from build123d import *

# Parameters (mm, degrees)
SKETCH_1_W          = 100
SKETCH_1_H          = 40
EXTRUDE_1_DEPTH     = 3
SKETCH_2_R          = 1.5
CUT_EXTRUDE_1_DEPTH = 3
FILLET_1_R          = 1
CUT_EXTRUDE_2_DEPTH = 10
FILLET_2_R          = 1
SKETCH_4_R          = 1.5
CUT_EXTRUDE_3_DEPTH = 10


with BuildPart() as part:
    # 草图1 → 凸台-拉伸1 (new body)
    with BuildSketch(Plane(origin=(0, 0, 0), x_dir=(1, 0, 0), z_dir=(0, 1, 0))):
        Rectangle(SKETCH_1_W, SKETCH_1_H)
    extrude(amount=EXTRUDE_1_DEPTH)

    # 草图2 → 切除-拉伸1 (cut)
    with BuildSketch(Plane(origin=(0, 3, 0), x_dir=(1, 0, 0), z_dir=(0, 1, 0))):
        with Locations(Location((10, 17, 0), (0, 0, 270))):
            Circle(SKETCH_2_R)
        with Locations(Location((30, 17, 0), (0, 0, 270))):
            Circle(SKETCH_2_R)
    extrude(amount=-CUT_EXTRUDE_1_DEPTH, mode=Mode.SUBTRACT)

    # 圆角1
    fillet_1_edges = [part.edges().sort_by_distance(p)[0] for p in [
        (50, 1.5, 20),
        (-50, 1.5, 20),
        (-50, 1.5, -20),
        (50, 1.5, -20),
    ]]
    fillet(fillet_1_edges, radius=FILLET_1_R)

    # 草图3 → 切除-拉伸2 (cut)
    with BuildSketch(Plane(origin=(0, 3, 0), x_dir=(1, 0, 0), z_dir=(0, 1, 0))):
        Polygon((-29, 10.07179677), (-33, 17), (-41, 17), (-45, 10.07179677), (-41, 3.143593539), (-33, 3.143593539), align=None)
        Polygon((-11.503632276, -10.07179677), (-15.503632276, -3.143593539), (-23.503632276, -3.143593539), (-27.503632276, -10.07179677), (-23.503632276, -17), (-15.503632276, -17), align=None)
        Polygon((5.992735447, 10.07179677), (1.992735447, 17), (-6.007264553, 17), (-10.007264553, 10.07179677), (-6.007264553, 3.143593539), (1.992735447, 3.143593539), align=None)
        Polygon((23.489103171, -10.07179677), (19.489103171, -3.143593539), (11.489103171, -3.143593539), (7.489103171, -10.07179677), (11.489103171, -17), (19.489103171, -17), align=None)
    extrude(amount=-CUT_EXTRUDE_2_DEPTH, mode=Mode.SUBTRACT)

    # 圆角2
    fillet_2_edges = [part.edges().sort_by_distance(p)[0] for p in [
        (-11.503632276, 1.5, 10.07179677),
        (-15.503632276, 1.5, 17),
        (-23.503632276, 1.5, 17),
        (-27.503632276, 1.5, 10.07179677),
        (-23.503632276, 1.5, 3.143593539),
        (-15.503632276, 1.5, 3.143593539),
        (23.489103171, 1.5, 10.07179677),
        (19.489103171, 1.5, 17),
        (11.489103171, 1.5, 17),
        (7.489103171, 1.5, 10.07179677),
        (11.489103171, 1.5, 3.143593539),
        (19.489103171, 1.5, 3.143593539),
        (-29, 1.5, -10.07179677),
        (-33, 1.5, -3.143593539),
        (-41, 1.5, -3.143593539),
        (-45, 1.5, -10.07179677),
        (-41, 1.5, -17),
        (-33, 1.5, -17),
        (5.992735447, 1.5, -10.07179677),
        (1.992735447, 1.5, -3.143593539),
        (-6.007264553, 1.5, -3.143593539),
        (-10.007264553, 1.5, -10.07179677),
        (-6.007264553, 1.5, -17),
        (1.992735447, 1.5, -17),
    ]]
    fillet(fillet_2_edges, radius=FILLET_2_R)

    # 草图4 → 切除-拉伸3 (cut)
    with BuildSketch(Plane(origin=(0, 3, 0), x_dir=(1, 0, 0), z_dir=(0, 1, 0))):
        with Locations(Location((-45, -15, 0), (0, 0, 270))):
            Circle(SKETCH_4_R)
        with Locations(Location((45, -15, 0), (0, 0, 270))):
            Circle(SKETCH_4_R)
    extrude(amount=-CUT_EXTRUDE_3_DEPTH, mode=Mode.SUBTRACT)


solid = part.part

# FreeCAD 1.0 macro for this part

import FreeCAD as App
import Part
import Sketcher
Q = App.Units.Quantity


def edges_at(feature, points):
    """Names of the edges that pass closest to the given points."""
    edges = feature.Shape.Edges
    near = lambda p: min(range(len(edges)), key=lambda i: edges[i].distToShape(Part.Vertex(*p))[0])
    return sorted({f"Edge{near(p) + 1}" for p in points})


def add_polygon(sketch, points):
    """Adds a closed chain of lines whose ends are joined by coincident constraints."""
    first, n = sketch.GeometryCount, len(points)
    for a, b in zip(points, points[1:] + points[:1]):
        sketch.addGeometry(Part.LineSegment(App.Vector(*a, 0), App.Vector(*b, 0)), False)
    for i in range(n):
        sketch.addConstraint(Sketcher.Constraint("Coincident", first + i, 2, first + (i + 1) % n, 1))

doc = App.newDocument("Part")
params = doc.addObject("Spreadsheet::Sheet", "Params")
for row, (alias, value) in enumerate([
    ("sketch1_width", "100 mm"),
    ("sketch1_height", "40 mm"),
    ("pad1_length", "3 mm"),
    ("sketch2_diameter", "3 mm"),
    ("pocket1_length", "3 mm"),
    ("fillet_radius", "1 mm"),
    ("sketch3_width", "8 mm"),
    ("sketch3_length", "8 mm"),
    ("pocket2_length", "10 mm"),
    ("fillet2_radius", "1 mm"),
    ("sketch4_diameter", "3 mm"),
    ("pocket3_length", "10 mm"),
], start=1):
    params.set(f"A{row}", alias)
    params.set(f"B{row}", "=" + value)
    params.setAlias(f"B{row}", alias)

body = doc.addObject("PartDesign::Body", "Body")

sketch1 = doc.addObject("Sketcher::SketchObject", "Sketch")
body.addObject(sketch1)
sketch1.AttachmentSupport = (doc.XZ_Plane, [""])
sketch1.MapMode = "FlatFace"
add_polygon(sketch1, [(-50, -20), (-50, 20), (50, 20), (50, -20)])
sketch1.addConstraint(Sketcher.Constraint("Vertical", 0))
sketch1.addConstraint(Sketcher.Constraint("Horizontal", 1))
sketch1.addConstraint(Sketcher.Constraint("Vertical", 2))
sketch1.addConstraint(Sketcher.Constraint("Horizontal", 3))
sketch1.addConstraint(Sketcher.Constraint("Symmetric", 0, 2, 2, 2, -1, 1))
sketch1.addConstraint(Sketcher.Constraint("DistanceX", 1, 1, 1, 2, 100.0))
sketch1.addConstraint(Sketcher.Constraint("DistanceY", 0, 1, 0, 2, 40.0))
sketch1.setExpression("Constraints[9]", "Params.sketch1_width")
sketch1.setExpression("Constraints[10]", "Params.sketch1_height")
pad1 = doc.addObject("PartDesign::Pad", "Pad")
body.addObject(pad1)
pad1.Profile = sketch1
pad1.setExpression("Length", "Params.pad1_length")
pad1.Reversed = True

sketch2 = doc.addObject("Sketcher::SketchObject", "Sketch001")
body.addObject(sketch2)
sketch2.AttachmentSupport = (doc.XZ_Plane, [""])
sketch2.MapMode = "FlatFace"
sketch2.AttachmentOffset = App.Placement(App.Vector(0, 0, -3), App.Rotation())
sketch2.addGeometry(Part.Circle(App.Vector(10, -17, 0), App.Vector(0, 0, 1), 1.5), False)
sketch2.addGeometry(Part.Circle(App.Vector(30, -17, 0), App.Vector(0, 0, 1), 1.5), False)
sketch2.addConstraint(Sketcher.Constraint("Equal", 0, 1))
sketch2.addConstraint(Sketcher.Constraint("Horizontal", 0, 3, 1, 3))
sketch2.addConstraint(Sketcher.Constraint("Diameter", 0, 3.0))
sketch2.addConstraint(Sketcher.Constraint("DistanceX", -1, 1, 0, 3, 10.0))
sketch2.addConstraint(Sketcher.Constraint("DistanceY", 0, 3, -1, 1, 17.0))
sketch2.addConstraint(Sketcher.Constraint("DistanceX", -1, 1, 1, 3, 30.0))
sketch2.setExpression("Constraints[2]", "Params.sketch2_diameter")
pocket1 = doc.addObject("PartDesign::Pocket", "Pocket")
body.addObject(pocket1)
pocket1.Profile = sketch2
pocket1.setExpression("Length", "Params.pocket1_length")
pocket1.Reversed = True
doc.recompute()

fillet = doc.addObject("PartDesign::Fillet", "Fillet")
body.addObject(fillet)
fillet.Base = (pocket1, edges_at(pocket1, [
    (50, 1.5, 20),
    (-50, 1.5, 20),
    (-50, 1.5, -20),
    (50, 1.5, -20),
]))
fillet.setExpression("Radius", "Params.fillet_radius")

sketch3 = doc.addObject("Sketcher::SketchObject", "Sketch002")
body.addObject(sketch3)
sketch3.AttachmentSupport = (doc.XZ_Plane, [""])
sketch3.MapMode = "FlatFace"
sketch3.AttachmentOffset = App.Placement(App.Vector(0, 0, -3), App.Rotation())
add_polygon(sketch3, [(-29, -10), (-33, -17), (-41, -17), (-45, -10), (-41, -3), (-33, -3)])
add_polygon(sketch3, [(-12, 10), (-16, 3), (-24, 3), (-28, 10), (-24, 17), (-16, 17)])
add_polygon(sketch3, [(6, -10), (2, -17), (-6, -17), (-10, -10), (-6, -3), (2, -3)])
add_polygon(sketch3, [(23, 10), (19, 3), (11, 3), (7, 10), (11, 17), (19, 17)])
sketch3.addConstraint(Sketcher.Constraint("Horizontal", 1))
sketch3.addConstraint(Sketcher.Constraint("Horizontal", 4))
sketch3.addConstraint(Sketcher.Constraint("Horizontal", 7))
sketch3.addConstraint(Sketcher.Constraint("Horizontal", 10))
sketch3.addConstraint(Sketcher.Constraint("Horizontal", 13))
sketch3.addConstraint(Sketcher.Constraint("Horizontal", 16))
sketch3.addConstraint(Sketcher.Constraint("Horizontal", 19))
sketch3.addConstraint(Sketcher.Constraint("Horizontal", 22))
sketch3.addConstraint(Sketcher.Constraint("Parallel", 0, 3))
sketch3.addConstraint(Sketcher.Constraint("Parallel", 2, 5))
sketch3.addConstraint(Sketcher.Constraint("Parallel", 3, 6))
sketch3.addConstraint(Sketcher.Constraint("Parallel", 5, 8))
sketch3.addConstraint(Sketcher.Constraint("Parallel", 6, 9))
sketch3.addConstraint(Sketcher.Constraint("Parallel", 8, 11))
sketch3.addConstraint(Sketcher.Constraint("Parallel", 9, 12))
sketch3.addConstraint(Sketcher.Constraint("Parallel", 11, 14))
sketch3.addConstraint(Sketcher.Constraint("Parallel", 12, 15))
sketch3.addConstraint(Sketcher.Constraint("Parallel", 14, 17))
sketch3.addConstraint(Sketcher.Constraint("Parallel", 15, 18))
sketch3.addConstraint(Sketcher.Constraint("Parallel", 17, 20))
sketch3.addConstraint(Sketcher.Constraint("Parallel", 18, 21))
sketch3.addConstraint(Sketcher.Constraint("Parallel", 20, 23))
sketch3.addConstraint(Sketcher.Constraint("Horizontal", 2, 2, 5, 2))
sketch3.addConstraint(Sketcher.Constraint("Horizontal", 8, 2, 11, 2))
sketch3.addConstraint(Sketcher.Constraint("Horizontal", 1, 2, 12, 2))
sketch3.addConstraint(Sketcher.Constraint("Horizontal", 5, 2, 14, 2))
sketch3.addConstraint(Sketcher.Constraint("Horizontal", 4, 2, 15, 2))
sketch3.addConstraint(Sketcher.Constraint("Horizontal", 14, 2, 17, 2))
sketch3.addConstraint(Sketcher.Constraint("Horizontal", 7, 2, 18, 2))
sketch3.addConstraint(Sketcher.Constraint("Horizontal", 11, 2, 20, 2))
sketch3.addConstraint(Sketcher.Constraint("Horizontal", 10, 2, 21, 2))
sketch3.addConstraint(Sketcher.Constraint("Horizontal", 20, 2, 23, 2))
sketch3.addConstraint(Sketcher.Constraint("Vertical", 1, 2, 3, 2))
sketch3.addConstraint(Sketcher.Constraint("Vertical", 0, 2, 4, 2))
sketch3.addConstraint(Sketcher.Constraint("Vertical", 7, 2, 9, 2))
sketch3.addConstraint(Sketcher.Constraint("Equal", 4, 7))
sketch3.addConstraint(Sketcher.Constraint("Equal", 10, 13))
sketch3.addConstraint(Sketcher.Constraint("Equal", 16, 19))
sketch3.addConstraint(Sketcher.Constraint("Equal", 5, 6))
sketch3.addConstraint(Sketcher.Constraint("DistanceX", 1, 2, 1, 1, 8.0))
sketch3.addConstraint(Sketcher.Constraint("Angle", 0, Q("-120 deg")))
sketch3.addConstraint(Sketcher.Constraint("Distance", 0, 8.0))
sketch3.addConstraint(Sketcher.Constraint("DistanceX", 0, 2, -1, 1, 33.0))
sketch3.addConstraint(Sketcher.Constraint("DistanceY", 0, 2, -1, 1, 17.0))
sketch3.addConstraint(Sketcher.Constraint("DistanceY", -1, 1, 9, 2, 17.0))
sketch3.addConstraint(Sketcher.Constraint("DistanceX", 6, 2, -1, 1, 15.503632))
sketch3.addConstraint(Sketcher.Constraint("DistanceX", -1, 1, 12, 2, 1.992735))
sketch3.addConstraint(Sketcher.Constraint("DistanceX", -1, 1, 18, 2, 19.489103))
sketch3.setExpression("Constraints[63]", "Params.sketch3_width")
sketch3.setExpression("Constraints[65]", "Params.sketch3_length")
pocket2 = doc.addObject("PartDesign::Pocket", "Pocket001")
body.addObject(pocket2)
pocket2.Profile = sketch3
pocket2.setExpression("Length", "Params.pocket2_length")
pocket2.Reversed = True
doc.recompute()

fillet2 = doc.addObject("PartDesign::Fillet", "Fillet001")
body.addObject(fillet2)
fillet2.Base = (pocket2, edges_at(pocket2, [
    (-11.504, 1.5, 10.072),
    (-15.504, 1.5, 17),
    (-23.504, 1.5, 17),
    (-27.504, 1.5, 10.072),
    (-23.504, 1.5, 3.144),
    (-15.504, 1.5, 3.144),
    (23.489, 1.5, 10.072),
    (19.489, 1.5, 17),
    (11.489, 1.5, 17),
    (7.489, 1.5, 10.072),
    (11.489, 1.5, 3.144),
    (19.489, 1.5, 3.144),
    (-29, 1.5, -10.072),
    (-33, 1.5, -3.144),
    (-41, 1.5, -3.144),
    (-45, 1.5, -10.072),
    (-41, 1.5, -17),
    (-33, 1.5, -17),
    (5.993, 1.5, -10.072),
    (1.993, 1.5, -3.144),
    (-6.007, 1.5, -3.144),
    (-10.007, 1.5, -10.072),
    (-6.007, 1.5, -17),
    (1.993, 1.5, -17),
]))
fillet2.setExpression("Radius", "Params.fillet2_radius")

sketch4 = doc.addObject("Sketcher::SketchObject", "Sketch003")
body.addObject(sketch4)
sketch4.AttachmentSupport = (doc.XZ_Plane, [""])
sketch4.MapMode = "FlatFace"
sketch4.AttachmentOffset = App.Placement(App.Vector(0, 0, -3), App.Rotation())
sketch4.addGeometry(Part.Circle(App.Vector(-45, 15, 0), App.Vector(0, 0, 1), 1.5), False)
sketch4.addGeometry(Part.Circle(App.Vector(45, 15, 0), App.Vector(0, 0, 1), 1.5), False)
sketch4.addConstraint(Sketcher.Constraint("Equal", 0, 1))
sketch4.addConstraint(Sketcher.Constraint("Symmetric", 0, 3, 1, 3, -2))
sketch4.addConstraint(Sketcher.Constraint("Diameter", 0, 3.0))
sketch4.addConstraint(Sketcher.Constraint("DistanceX", 0, 3, -1, 1, 45.0))
sketch4.addConstraint(Sketcher.Constraint("DistanceY", -1, 1, 0, 3, 15.0))
sketch4.setExpression("Constraints[2]", "Params.sketch4_diameter")
pocket3 = doc.addObject("PartDesign::Pocket", "Pocket002")
body.addObject(pocket3)
pocket3.Profile = sketch4
pocket3.setExpression("Length", "Params.pocket3_length")
pocket3.Reversed = True

doc.recompute()
